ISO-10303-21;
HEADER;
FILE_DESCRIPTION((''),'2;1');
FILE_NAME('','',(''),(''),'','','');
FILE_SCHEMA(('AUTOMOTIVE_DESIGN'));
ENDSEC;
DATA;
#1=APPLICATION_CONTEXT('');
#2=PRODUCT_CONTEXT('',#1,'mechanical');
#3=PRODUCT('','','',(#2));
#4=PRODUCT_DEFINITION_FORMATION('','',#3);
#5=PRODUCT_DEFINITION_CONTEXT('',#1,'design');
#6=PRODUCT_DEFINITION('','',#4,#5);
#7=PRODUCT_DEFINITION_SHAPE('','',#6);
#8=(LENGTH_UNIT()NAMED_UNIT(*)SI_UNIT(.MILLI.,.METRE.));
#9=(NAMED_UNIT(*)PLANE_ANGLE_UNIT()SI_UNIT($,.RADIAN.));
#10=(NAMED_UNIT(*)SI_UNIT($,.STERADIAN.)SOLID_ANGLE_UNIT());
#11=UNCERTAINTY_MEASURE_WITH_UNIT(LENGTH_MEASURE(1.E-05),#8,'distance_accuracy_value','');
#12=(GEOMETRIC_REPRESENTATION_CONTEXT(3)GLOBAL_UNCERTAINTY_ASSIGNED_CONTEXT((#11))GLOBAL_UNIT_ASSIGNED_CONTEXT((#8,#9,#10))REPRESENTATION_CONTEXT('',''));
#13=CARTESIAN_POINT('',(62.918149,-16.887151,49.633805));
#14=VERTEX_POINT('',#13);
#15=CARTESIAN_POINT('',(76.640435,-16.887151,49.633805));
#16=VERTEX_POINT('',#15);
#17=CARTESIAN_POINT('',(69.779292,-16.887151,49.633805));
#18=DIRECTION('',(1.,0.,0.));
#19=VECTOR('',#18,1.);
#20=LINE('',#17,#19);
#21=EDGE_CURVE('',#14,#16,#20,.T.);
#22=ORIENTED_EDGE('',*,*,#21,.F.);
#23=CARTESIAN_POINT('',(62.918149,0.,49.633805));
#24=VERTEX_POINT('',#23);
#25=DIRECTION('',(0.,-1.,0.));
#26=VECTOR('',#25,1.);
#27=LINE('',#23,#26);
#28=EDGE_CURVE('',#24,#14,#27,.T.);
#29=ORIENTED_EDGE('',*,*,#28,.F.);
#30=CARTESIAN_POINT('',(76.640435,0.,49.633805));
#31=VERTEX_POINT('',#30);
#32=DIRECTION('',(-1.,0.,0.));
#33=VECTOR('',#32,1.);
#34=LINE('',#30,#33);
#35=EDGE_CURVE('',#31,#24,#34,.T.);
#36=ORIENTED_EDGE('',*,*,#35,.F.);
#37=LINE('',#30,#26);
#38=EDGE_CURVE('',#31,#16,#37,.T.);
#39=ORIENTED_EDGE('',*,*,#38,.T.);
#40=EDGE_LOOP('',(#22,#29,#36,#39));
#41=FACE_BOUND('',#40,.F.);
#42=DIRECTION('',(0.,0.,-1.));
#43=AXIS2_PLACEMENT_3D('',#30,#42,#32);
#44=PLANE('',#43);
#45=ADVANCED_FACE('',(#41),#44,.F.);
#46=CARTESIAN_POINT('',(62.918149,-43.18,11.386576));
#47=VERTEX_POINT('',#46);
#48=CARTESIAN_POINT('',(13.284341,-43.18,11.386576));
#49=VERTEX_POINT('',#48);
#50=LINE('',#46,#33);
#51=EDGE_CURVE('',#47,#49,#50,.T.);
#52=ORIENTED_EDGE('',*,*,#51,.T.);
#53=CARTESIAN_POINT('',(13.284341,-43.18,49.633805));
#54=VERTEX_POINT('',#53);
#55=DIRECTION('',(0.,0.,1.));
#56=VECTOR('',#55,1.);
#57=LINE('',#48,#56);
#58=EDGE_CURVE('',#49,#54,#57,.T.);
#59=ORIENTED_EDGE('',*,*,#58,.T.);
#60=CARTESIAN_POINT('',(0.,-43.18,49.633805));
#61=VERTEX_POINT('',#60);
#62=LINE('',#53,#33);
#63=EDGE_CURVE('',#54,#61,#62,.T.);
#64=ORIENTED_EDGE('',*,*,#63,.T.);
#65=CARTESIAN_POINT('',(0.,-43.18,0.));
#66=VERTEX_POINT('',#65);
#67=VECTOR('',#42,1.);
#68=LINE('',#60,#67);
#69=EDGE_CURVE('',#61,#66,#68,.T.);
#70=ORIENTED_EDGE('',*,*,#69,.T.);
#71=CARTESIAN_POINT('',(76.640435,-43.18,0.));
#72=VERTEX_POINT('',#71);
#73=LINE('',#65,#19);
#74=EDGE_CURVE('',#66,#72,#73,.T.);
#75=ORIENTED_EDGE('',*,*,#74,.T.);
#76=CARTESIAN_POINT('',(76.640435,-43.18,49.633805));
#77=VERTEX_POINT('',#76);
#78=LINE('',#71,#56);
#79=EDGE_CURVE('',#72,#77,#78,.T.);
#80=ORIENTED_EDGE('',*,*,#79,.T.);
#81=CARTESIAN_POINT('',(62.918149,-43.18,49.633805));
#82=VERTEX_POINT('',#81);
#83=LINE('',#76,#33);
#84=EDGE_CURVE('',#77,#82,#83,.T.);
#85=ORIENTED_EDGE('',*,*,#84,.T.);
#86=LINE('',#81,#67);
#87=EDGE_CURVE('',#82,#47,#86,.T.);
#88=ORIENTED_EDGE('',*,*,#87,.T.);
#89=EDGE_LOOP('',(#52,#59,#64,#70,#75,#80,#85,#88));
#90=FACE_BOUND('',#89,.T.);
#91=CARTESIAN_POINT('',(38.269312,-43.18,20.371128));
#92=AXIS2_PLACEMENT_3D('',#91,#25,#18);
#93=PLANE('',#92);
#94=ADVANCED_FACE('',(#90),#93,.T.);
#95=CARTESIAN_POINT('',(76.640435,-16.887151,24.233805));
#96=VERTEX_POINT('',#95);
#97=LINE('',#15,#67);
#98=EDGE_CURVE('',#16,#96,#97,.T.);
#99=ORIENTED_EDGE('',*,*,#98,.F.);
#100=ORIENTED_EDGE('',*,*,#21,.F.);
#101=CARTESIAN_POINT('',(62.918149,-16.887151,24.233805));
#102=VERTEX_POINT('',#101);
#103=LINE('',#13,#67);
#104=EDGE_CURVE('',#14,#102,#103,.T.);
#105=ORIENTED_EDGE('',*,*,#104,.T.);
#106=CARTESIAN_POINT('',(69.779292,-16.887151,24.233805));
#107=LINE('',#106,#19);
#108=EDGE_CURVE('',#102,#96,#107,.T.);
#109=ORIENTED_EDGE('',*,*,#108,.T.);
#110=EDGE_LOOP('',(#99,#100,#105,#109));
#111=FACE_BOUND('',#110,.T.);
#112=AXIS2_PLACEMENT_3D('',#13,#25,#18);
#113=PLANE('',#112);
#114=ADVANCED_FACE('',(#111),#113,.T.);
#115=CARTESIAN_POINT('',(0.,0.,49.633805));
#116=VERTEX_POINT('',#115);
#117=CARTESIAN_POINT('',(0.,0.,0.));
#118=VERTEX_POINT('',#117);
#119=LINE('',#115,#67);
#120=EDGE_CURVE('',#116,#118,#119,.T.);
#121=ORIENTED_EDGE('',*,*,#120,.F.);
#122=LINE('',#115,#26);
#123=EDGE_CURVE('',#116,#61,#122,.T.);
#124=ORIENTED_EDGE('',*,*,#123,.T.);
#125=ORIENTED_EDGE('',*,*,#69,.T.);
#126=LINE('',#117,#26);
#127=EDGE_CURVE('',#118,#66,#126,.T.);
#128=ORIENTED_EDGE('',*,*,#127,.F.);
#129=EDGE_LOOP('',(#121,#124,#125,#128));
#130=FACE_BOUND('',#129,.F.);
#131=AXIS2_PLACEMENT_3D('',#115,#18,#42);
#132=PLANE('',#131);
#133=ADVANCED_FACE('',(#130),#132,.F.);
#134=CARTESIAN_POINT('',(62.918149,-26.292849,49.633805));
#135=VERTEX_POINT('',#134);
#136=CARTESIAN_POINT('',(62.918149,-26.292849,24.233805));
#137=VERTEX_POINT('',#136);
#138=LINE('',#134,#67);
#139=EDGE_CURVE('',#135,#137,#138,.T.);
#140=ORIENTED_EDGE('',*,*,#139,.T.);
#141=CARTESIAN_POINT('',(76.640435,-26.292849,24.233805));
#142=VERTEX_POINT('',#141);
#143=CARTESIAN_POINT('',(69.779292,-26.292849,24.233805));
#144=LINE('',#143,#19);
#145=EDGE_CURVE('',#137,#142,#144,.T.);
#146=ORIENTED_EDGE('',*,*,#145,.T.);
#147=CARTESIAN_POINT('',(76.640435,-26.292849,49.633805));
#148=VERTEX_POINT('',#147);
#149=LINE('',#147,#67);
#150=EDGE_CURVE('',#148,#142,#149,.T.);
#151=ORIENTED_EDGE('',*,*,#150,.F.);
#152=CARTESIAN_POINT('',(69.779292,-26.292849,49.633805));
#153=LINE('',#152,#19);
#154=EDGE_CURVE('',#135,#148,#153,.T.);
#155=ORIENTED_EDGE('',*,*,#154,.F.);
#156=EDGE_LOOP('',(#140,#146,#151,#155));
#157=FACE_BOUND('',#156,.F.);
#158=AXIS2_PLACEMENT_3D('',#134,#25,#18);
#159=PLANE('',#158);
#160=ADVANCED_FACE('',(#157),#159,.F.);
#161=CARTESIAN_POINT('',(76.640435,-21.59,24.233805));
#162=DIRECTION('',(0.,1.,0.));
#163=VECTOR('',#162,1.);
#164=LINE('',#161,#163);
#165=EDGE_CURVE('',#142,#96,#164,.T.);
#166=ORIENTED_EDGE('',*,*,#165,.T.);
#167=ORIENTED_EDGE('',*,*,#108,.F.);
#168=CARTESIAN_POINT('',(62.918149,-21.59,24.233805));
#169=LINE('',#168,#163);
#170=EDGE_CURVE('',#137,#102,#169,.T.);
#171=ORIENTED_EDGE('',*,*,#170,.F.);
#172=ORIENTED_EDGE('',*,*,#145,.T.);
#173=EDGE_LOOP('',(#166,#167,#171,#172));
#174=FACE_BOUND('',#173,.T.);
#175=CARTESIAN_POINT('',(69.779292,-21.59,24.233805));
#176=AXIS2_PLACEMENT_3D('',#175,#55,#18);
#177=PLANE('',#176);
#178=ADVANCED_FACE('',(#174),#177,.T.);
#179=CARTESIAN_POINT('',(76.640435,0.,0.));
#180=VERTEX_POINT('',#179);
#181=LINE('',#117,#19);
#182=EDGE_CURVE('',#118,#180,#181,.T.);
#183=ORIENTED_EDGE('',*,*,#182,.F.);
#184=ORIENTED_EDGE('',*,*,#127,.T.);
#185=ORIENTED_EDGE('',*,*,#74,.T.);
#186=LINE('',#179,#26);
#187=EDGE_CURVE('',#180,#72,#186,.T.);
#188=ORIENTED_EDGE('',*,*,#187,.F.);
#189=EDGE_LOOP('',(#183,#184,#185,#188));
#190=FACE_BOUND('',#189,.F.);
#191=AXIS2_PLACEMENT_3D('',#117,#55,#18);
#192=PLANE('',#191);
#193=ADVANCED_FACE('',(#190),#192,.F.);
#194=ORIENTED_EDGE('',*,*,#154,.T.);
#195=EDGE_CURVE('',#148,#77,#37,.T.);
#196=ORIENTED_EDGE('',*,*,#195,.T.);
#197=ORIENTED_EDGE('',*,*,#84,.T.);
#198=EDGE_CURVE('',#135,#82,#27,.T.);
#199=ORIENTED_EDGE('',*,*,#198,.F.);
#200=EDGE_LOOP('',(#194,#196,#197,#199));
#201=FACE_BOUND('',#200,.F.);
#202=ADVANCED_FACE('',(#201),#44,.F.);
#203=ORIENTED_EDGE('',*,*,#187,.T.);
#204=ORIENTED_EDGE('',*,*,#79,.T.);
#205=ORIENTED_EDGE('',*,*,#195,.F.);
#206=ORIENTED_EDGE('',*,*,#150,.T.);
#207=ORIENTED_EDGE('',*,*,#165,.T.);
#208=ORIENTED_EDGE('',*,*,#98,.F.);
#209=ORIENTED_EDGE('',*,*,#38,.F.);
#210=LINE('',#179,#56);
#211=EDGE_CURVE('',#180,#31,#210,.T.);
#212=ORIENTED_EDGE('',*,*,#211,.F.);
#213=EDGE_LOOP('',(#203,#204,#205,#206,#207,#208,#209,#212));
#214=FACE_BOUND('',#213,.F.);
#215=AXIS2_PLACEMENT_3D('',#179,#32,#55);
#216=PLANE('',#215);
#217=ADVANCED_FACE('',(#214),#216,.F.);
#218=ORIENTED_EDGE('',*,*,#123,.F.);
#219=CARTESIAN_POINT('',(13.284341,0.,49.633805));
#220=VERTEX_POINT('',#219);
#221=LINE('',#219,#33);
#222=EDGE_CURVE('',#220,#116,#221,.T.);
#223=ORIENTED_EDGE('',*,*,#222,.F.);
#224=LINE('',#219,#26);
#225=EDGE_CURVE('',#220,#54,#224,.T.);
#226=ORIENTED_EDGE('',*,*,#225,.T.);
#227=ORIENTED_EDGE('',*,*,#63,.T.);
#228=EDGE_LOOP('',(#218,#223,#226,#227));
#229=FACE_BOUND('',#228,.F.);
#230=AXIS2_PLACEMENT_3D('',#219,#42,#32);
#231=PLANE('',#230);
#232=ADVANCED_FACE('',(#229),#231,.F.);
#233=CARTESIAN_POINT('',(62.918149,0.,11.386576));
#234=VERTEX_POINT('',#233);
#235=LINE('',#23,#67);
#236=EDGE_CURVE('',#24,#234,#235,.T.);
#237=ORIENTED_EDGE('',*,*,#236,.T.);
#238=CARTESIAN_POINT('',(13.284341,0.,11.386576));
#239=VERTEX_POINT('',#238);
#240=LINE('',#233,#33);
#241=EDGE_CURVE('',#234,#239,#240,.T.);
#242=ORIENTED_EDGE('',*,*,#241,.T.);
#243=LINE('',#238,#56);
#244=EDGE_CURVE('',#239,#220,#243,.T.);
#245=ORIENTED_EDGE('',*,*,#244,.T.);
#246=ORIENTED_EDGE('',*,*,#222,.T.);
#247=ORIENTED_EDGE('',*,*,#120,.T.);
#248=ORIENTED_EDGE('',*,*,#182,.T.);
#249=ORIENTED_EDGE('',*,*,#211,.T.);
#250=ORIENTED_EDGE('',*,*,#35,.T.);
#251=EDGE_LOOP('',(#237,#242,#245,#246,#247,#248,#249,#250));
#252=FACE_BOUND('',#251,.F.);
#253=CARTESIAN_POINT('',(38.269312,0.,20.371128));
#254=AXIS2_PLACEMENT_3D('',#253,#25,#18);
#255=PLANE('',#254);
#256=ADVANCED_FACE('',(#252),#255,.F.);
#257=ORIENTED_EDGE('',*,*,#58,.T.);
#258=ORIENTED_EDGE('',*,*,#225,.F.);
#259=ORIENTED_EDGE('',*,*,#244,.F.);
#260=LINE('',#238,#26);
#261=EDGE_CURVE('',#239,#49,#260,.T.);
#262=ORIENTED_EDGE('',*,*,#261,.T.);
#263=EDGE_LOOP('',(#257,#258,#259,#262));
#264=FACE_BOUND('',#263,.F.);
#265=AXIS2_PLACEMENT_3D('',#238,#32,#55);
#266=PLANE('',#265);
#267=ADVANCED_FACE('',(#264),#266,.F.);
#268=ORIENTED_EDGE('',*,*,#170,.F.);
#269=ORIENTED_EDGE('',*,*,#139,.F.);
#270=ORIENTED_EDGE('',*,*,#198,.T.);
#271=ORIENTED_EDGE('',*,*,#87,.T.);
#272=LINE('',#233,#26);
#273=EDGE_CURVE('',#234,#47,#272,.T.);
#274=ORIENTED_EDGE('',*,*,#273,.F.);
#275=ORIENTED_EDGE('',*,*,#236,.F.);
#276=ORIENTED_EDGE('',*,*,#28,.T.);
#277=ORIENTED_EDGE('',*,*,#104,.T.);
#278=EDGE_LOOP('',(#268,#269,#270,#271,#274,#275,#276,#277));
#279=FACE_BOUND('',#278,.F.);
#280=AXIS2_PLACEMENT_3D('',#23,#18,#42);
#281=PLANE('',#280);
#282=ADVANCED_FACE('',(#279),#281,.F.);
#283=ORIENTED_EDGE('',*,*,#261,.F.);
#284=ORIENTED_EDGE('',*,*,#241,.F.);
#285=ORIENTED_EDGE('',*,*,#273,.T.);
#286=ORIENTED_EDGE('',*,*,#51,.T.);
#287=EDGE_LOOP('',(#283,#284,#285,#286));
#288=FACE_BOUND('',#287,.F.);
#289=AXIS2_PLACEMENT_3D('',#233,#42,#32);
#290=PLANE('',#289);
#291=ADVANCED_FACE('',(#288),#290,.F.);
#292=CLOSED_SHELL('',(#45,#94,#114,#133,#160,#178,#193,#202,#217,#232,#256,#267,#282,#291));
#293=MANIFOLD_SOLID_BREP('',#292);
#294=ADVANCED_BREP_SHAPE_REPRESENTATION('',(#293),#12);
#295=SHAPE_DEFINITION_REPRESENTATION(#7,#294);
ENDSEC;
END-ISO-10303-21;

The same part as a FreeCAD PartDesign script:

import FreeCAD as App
import Part
import Sketcher
Q = App.Units.Quantity


def add_polygon(sketch, points):
    """Adds a closed chain of lines whose ends are joined by coincident constraints."""
    first, n = sketch.GeometryCount, len(points)
    for a, b in zip(points, points[1:] + points[:1]):
        sketch.addGeometry(Part.LineSegment(App.Vector(*a, 0), App.Vector(*b, 0)), False)
    for i in range(n):
        sketch.addConstraint(Sketcher.Constraint("Coincident", first + i, 2, first + (i + 1) % n, 1))

doc = App.newDocument("Part")
body = doc.addObject("PartDesign::Body", "Body")

# Sketch on XZ plane
sketch1 = body.newObject("Sketcher::SketchObject", "Sketch")
sketch1.AttachmentSupport = (doc.getObject("XZ_Plane"), [""])
sketch1.MapMode = "FlatFace"
add_polygon(sketch1, [(0, 50), (0, 0), (77, 0), (77, 50), (63, 50), (63, 11), (13, 11), (13, 50)])  # lines 0-7
sketch1.addConstraint([
    Sketcher.Constraint("Vertical", 0),
    Sketcher.Constraint("Horizontal", 1),
    Sketcher.Constraint("Vertical", 2),
    Sketcher.Constraint("Horizontal", 3),
    Sketcher.Constraint("Vertical", 4),
    Sketcher.Constraint("Horizontal", 5),
    Sketcher.Constraint("Vertical", 6),
    Sketcher.Constraint("Horizontal", 7),
    Sketcher.Constraint("Coincident", 0, 2, -1, 1),
    Sketcher.Constraint("Horizontal", 3, 2, 6, 2),
    Sketcher.Constraint("DistanceX", 5, 2, 5, 1, 49.633808),
    Sketcher.Constraint("DistanceX", 7, 2, 7, 1, 13.284341),
    Sketcher.Constraint("DistanceY", 4, 2, 4, 1, 38.247229),
    Sketcher.Constraint("DistanceX", 1, 1, 1, 2, 76.640435),
    Sketcher.Constraint("DistanceY", 0, 2, 0, 1, 49.633805),
])
pad1 = body.newObject("PartDesign::Pad", "Pad")
pad1.Profile = sketch1
pad1.Length = Q("1.7 in")

# Sketch on XY plane
sketch2 = body.newObject("Sketcher::SketchObject", "Sketch001")
sketch2.AttachmentSupport = (doc.getObject("XY_Plane"), [""])
sketch2.MapMode = "FlatFace"
sketch2.AttachmentOffset = App.Placement(App.Vector(0, 0, 49.633805), App.Rotation())
add_polygon(sketch2, [(63, -17), (63, -26), (77, -26), (77, -17)])  # lines 0-3
sketch2.addConstraint([
    Sketcher.Constraint("Vertical", 0),
    Sketcher.Constraint("Horizontal", 1),
    Sketcher.Constraint("Vertical", 2),
    Sketcher.Constraint("Horizontal", 3),
    Sketcher.Constraint("DistanceY", 0, 2, 0, 1, 9.405698),
    Sketcher.Constraint("DistanceX", 1, 1, 1, 2, 13.722286),
    Sketcher.Constraint("DistanceX", -1, 1, 0, 2, 62.918149),
    Sketcher.Constraint("DistanceY", 0, 2, -1, 1, 26.292849),
])
pocket1 = body.newObject("PartDesign::Pocket", "Pocket")
pocket1.Profile = sketch2
pocket1.Length = Q("1 in")

doc.recompute()
